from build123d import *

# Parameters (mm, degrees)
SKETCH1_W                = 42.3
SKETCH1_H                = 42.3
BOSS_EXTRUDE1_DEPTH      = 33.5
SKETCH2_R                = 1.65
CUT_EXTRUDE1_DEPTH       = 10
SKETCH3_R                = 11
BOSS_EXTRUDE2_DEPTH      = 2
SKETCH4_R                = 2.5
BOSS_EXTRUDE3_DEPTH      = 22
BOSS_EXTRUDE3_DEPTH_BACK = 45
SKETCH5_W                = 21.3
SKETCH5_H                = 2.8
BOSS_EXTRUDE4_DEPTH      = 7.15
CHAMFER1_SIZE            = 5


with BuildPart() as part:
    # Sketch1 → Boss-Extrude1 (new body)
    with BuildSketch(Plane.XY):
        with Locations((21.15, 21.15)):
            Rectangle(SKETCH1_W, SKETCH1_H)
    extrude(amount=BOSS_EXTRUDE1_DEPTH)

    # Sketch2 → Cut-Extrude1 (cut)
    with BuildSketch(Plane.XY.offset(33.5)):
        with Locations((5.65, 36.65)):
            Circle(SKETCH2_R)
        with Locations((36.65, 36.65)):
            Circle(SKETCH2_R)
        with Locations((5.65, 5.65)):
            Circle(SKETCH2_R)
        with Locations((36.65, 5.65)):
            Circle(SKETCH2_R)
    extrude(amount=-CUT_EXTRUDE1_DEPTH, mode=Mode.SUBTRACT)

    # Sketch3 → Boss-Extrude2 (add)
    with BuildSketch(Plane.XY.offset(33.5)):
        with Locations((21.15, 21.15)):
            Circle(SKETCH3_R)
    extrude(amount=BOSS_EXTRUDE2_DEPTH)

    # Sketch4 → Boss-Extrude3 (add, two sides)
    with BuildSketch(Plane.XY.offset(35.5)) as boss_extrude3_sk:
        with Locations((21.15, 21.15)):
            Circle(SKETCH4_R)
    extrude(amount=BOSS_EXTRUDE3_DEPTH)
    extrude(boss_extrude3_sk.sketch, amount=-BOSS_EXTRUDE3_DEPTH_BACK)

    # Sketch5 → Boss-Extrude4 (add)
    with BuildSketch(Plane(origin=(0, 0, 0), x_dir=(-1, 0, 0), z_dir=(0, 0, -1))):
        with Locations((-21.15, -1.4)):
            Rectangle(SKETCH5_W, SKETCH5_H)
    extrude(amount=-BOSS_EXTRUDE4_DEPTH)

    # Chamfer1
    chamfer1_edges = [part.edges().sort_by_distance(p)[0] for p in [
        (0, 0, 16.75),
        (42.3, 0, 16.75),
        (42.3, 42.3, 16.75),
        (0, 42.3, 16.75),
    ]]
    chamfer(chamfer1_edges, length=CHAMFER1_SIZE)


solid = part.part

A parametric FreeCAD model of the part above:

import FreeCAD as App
import Part
import Sketcher

V = App.Vector
Q = App.Units.Quantity


def edges_at(feature, points):
    """Names of the edges that pass closest to the given points."""
    edges = feature.Shape.Edges
    near = lambda p: min(range(len(edges)), key=lambda i: edges[i].distToShape(Part.Vertex(*p))[0])
    return sorted({f"Edge{near(p) + 1}" for p in points})

doc = App.newDocument("Part")
body = doc.addObject("PartDesign::Body", "Body")

sketch1 = doc.addObject("Sketcher::SketchObject", "Sketch")
body.addObject(sketch1)
sketch1.AttachmentSupport = (doc.XY_Plane, [""])
sketch1.MapMode = "FlatFace"
sketch1.addGeometry(Part.LineSegment(V(0, 42, 0), V(0, 0, 0)), False)
sketch1.addGeometry(Part.LineSegment(V(0, 0, 0), V(42, 0, 0)), False)
sketch1.addGeometry(Part.LineSegment(V(42, 0, 0), V(42, 42, 0)), False)
sketch1.addGeometry(Part.LineSegment(V(42, 42, 0), V(0, 42, 0)), False)
sketch1.addConstraint(Sketcher.Constraint("Coincident", 0, 2, 1, 1))
sketch1.addConstraint(Sketcher.Constraint("Coincident", 1, 2, 2, 1))
sketch1.addConstraint(Sketcher.Constraint("Coincident", 2, 2, 3, 1))
sketch1.addConstraint(Sketcher.Constraint("Coincident", 3, 2, 0, 1))
sketch1.addConstraint(Sketcher.Constraint("Vertical", 0))
sketch1.addConstraint(Sketcher.Constraint("Horizontal", 1))
sketch1.addConstraint(Sketcher.Constraint("Vertical", 2))
sketch1.addConstraint(Sketcher.Constraint("Horizontal", 3))
sketch1.addConstraint(Sketcher.Constraint("Coincident", 0, 2, -1, 1))
sketch1.addConstraint(Sketcher.Constraint("Equal", 3, 0))
sketch1.addConstraint(Sketcher.Constraint("DistanceX", 1, 1, 1, 2, Q("42.3 mm")))
pad1 = doc.addObject("PartDesign::Pad", "Pad")
body.addObject(pad1)
pad1.Profile = sketch1
pad1.Length = 33.5

sketch2 = doc.addObject("Sketcher::SketchObject", "Sketch001")
body.addObject(sketch2)
sketch2.AttachmentSupport = (doc.XY_Plane, [""])
sketch2.MapMode = "FlatFace"
sketch2.AttachmentOffset = App.Placement(V(0, 0, 33.5), App.Rotation())
sketch2.addGeometry(Part.Circle(V(5.7, 36.6, 0), V(0, 0, 1), 1.6), False)
sketch2.addGeometry(Part.Circle(V(36.6, 36.6, 0), V(0, 0, 1), 1.6), False)
sketch2.addGeometry(Part.Circle(V(5.7, 5.7, 0), V(0, 0, 1), 1.6), False)
sketch2.addGeometry(Part.Circle(V(36.6, 5.7, 0), V(0, 0, 1), 1.6), False)
sketch2.addConstraint(Sketcher.Constraint("Equal", 0, 1))
sketch2.addConstraint(Sketcher.Constraint("Equal", 1, 2))
sketch2.addConstraint(Sketcher.Constraint("Equal", 2, 3))
sketch2.addConstraint(Sketcher.Constraint("Horizontal", 0, 3, 1, 3))
sketch2.addConstraint(Sketcher.Constraint("Horizontal", 2, 3, 3, 3))
sketch2.addConstraint(Sketcher.Constraint("Vertical", 0, 3, 2, 3))
sketch2.addConstraint(Sketcher.Constraint("Vertical", 1, 3, 3, 3))
sketch2.addConstraint(Sketcher.Constraint("Diameter", 0, Q("3.3 mm")))
sketch2.addConstraint(Sketcher.Constraint("DistanceX", 0, 3, 1, 3, Q("31 mm")))
sketch2.addConstraint(Sketcher.Constraint("DistanceY", 2, 3, 0, 3, Q("31 mm")))
sketch2.addConstraint(Sketcher.Constraint("DistanceX", -1, 1, 0, 3, Q("5.65 mm")))
sketch2.addConstraint(Sketcher.Constraint("DistanceY", -1, 1, 0, 3, Q("36.65 mm")))
pocket1 = doc.addObject("PartDesign::Pocket", "Pocket")
body.addObject(pocket1)
pocket1.Profile = sketch2
pocket1.Length = 10

sketch3 = doc.addObject("Sketcher::SketchObject", "Sketch002")
body.addObject(sketch3)
sketch3.AttachmentSupport = (doc.XY_Plane, [""])
sketch3.MapMode = "FlatFace"
sketch3.AttachmentOffset = App.Placement(V(0, 0, 33.5), App.Rotation())
sketch3.addGeometry(Part.Circle(V(21, 21, 0), V(0, 0, 1), 11), False)
sketch3.addConstraint(Sketcher.Constraint("Diameter", 0, Q("22 mm")))
sketch3.addConstraint(Sketcher.Constraint("DistanceX", -1, 1, 0, 3, Q("21.15 mm")))
sketch3.addConstraint(Sketcher.Constraint("DistanceY", -1, 1, 0, 3, Q("21.15 mm")))
pad2 = doc.addObject("PartDesign::Pad", "Pad001")
body.addObject(pad2)
pad2.Profile = sketch3
pad2.Length = 2

sketch4 = doc.addObject("Sketcher::SketchObject", "Sketch003")
body.addObject(sketch4)
sketch4.AttachmentSupport = (doc.XY_Plane, [""])
sketch4.MapMode = "FlatFace"
sketch4.AttachmentOffset = App.Placement(V(0, 0, 35.5), App.Rotation())
sketch4.addGeometry(Part.Circle(V(21.1, 21.1, 0), V(0, 0, 1), 2.5), False)
sketch4.addConstraint(Sketcher.Constraint("Diameter", 0, Q("5 mm")))
sketch4.addConstraint(Sketcher.Constraint("DistanceX", -1, 1, 0, 3, Q("21.15 mm")))
sketch4.addConstraint(Sketcher.Constraint("DistanceY", -1, 1, 0, 3, Q("21.15 mm")))
pad3 = doc.addObject("PartDesign::Pad", "Pad002")
body.addObject(pad3)
pad3.Profile = sketch4
pad3.Type = "TwoLengths"
pad3.Length = 22
pad3.Length2 = 45

sketch5 = doc.addObject("Sketcher::SketchObject", "Sketch004")
body.addObject(sketch5)
sketch5.AttachmentSupport = (doc.XY_Plane, [""])
sketch5.MapMode = "FlatFace"
sketch5.addGeometry(Part.LineSegment(V(31.8, 0, 0), V(31.8, -2.8, 0)), False)
sketch5.addGeometry(Part.LineSegment(V(31.8, -2.8, 0), V(10.5, -2.8, 0)), False)
sketch5.addGeometry(Part.LineSegment(V(10.5, -2.8, 0), V(10.5, 0, 0)), False)
sketch5.addGeometry(Part.LineSegment(V(10.5, 0, 0), V(31.8, 0, 0)), False)
sketch5.addConstraint(Sketcher.Constraint("Coincident", 0, 2, 1, 1))
sketch5.addConstraint(Sketcher.Constraint("Coincident", 1, 2, 2, 1))
sketch5.addConstraint(Sketcher.Constraint("Coincident", 2, 2, 3, 1))
sketch5.addConstraint(Sketcher.Constraint("Coincident", 3, 2, 0, 1))
sketch5.addConstraint(Sketcher.Constraint("Vertical", 0))
sketch5.addConstraint(Sketcher.Constraint("Horizontal", 1))
sketch5.addConstraint(Sketcher.Constraint("Vertical", 2))
sketch5.addConstraint(Sketcher.Constraint("Horizontal", 3))
sketch5.addConstraint(Sketcher.Constraint("PointOnObject", 2, 2, -1))
sketch5.addConstraint(Sketcher.Constraint("DistanceX", 1, 2, 1, 1, Q("21.3 mm")))
sketch5.addConstraint(Sketcher.Constraint("DistanceY", 0, 2, 0, 1, Q("2.8 mm")))
sketch5.addConstraint(Sketcher.Constraint("DistanceX", -1, 1, 0, 2, Q("31.8 mm")))
pad4 = doc.addObject("PartDesign::Pad", "Pad003")
body.addObject(pad4)
pad4.Profile = sketch5
pad4.Length = 7.15
doc.recompute()

chamfer = doc.addObject("PartDesign::Chamfer", "Chamfer")
body.addObject(chamfer)
chamfer.Base = (pad4, edges_at(pad4, [
    (0, 0, 16.75),
    (42.3, 0, 16.75),
    (42.3, 42.3, 16.75),
    (0, 42.3, 16.75),
]))
chamfer.Size = 5

doc.recompute()
